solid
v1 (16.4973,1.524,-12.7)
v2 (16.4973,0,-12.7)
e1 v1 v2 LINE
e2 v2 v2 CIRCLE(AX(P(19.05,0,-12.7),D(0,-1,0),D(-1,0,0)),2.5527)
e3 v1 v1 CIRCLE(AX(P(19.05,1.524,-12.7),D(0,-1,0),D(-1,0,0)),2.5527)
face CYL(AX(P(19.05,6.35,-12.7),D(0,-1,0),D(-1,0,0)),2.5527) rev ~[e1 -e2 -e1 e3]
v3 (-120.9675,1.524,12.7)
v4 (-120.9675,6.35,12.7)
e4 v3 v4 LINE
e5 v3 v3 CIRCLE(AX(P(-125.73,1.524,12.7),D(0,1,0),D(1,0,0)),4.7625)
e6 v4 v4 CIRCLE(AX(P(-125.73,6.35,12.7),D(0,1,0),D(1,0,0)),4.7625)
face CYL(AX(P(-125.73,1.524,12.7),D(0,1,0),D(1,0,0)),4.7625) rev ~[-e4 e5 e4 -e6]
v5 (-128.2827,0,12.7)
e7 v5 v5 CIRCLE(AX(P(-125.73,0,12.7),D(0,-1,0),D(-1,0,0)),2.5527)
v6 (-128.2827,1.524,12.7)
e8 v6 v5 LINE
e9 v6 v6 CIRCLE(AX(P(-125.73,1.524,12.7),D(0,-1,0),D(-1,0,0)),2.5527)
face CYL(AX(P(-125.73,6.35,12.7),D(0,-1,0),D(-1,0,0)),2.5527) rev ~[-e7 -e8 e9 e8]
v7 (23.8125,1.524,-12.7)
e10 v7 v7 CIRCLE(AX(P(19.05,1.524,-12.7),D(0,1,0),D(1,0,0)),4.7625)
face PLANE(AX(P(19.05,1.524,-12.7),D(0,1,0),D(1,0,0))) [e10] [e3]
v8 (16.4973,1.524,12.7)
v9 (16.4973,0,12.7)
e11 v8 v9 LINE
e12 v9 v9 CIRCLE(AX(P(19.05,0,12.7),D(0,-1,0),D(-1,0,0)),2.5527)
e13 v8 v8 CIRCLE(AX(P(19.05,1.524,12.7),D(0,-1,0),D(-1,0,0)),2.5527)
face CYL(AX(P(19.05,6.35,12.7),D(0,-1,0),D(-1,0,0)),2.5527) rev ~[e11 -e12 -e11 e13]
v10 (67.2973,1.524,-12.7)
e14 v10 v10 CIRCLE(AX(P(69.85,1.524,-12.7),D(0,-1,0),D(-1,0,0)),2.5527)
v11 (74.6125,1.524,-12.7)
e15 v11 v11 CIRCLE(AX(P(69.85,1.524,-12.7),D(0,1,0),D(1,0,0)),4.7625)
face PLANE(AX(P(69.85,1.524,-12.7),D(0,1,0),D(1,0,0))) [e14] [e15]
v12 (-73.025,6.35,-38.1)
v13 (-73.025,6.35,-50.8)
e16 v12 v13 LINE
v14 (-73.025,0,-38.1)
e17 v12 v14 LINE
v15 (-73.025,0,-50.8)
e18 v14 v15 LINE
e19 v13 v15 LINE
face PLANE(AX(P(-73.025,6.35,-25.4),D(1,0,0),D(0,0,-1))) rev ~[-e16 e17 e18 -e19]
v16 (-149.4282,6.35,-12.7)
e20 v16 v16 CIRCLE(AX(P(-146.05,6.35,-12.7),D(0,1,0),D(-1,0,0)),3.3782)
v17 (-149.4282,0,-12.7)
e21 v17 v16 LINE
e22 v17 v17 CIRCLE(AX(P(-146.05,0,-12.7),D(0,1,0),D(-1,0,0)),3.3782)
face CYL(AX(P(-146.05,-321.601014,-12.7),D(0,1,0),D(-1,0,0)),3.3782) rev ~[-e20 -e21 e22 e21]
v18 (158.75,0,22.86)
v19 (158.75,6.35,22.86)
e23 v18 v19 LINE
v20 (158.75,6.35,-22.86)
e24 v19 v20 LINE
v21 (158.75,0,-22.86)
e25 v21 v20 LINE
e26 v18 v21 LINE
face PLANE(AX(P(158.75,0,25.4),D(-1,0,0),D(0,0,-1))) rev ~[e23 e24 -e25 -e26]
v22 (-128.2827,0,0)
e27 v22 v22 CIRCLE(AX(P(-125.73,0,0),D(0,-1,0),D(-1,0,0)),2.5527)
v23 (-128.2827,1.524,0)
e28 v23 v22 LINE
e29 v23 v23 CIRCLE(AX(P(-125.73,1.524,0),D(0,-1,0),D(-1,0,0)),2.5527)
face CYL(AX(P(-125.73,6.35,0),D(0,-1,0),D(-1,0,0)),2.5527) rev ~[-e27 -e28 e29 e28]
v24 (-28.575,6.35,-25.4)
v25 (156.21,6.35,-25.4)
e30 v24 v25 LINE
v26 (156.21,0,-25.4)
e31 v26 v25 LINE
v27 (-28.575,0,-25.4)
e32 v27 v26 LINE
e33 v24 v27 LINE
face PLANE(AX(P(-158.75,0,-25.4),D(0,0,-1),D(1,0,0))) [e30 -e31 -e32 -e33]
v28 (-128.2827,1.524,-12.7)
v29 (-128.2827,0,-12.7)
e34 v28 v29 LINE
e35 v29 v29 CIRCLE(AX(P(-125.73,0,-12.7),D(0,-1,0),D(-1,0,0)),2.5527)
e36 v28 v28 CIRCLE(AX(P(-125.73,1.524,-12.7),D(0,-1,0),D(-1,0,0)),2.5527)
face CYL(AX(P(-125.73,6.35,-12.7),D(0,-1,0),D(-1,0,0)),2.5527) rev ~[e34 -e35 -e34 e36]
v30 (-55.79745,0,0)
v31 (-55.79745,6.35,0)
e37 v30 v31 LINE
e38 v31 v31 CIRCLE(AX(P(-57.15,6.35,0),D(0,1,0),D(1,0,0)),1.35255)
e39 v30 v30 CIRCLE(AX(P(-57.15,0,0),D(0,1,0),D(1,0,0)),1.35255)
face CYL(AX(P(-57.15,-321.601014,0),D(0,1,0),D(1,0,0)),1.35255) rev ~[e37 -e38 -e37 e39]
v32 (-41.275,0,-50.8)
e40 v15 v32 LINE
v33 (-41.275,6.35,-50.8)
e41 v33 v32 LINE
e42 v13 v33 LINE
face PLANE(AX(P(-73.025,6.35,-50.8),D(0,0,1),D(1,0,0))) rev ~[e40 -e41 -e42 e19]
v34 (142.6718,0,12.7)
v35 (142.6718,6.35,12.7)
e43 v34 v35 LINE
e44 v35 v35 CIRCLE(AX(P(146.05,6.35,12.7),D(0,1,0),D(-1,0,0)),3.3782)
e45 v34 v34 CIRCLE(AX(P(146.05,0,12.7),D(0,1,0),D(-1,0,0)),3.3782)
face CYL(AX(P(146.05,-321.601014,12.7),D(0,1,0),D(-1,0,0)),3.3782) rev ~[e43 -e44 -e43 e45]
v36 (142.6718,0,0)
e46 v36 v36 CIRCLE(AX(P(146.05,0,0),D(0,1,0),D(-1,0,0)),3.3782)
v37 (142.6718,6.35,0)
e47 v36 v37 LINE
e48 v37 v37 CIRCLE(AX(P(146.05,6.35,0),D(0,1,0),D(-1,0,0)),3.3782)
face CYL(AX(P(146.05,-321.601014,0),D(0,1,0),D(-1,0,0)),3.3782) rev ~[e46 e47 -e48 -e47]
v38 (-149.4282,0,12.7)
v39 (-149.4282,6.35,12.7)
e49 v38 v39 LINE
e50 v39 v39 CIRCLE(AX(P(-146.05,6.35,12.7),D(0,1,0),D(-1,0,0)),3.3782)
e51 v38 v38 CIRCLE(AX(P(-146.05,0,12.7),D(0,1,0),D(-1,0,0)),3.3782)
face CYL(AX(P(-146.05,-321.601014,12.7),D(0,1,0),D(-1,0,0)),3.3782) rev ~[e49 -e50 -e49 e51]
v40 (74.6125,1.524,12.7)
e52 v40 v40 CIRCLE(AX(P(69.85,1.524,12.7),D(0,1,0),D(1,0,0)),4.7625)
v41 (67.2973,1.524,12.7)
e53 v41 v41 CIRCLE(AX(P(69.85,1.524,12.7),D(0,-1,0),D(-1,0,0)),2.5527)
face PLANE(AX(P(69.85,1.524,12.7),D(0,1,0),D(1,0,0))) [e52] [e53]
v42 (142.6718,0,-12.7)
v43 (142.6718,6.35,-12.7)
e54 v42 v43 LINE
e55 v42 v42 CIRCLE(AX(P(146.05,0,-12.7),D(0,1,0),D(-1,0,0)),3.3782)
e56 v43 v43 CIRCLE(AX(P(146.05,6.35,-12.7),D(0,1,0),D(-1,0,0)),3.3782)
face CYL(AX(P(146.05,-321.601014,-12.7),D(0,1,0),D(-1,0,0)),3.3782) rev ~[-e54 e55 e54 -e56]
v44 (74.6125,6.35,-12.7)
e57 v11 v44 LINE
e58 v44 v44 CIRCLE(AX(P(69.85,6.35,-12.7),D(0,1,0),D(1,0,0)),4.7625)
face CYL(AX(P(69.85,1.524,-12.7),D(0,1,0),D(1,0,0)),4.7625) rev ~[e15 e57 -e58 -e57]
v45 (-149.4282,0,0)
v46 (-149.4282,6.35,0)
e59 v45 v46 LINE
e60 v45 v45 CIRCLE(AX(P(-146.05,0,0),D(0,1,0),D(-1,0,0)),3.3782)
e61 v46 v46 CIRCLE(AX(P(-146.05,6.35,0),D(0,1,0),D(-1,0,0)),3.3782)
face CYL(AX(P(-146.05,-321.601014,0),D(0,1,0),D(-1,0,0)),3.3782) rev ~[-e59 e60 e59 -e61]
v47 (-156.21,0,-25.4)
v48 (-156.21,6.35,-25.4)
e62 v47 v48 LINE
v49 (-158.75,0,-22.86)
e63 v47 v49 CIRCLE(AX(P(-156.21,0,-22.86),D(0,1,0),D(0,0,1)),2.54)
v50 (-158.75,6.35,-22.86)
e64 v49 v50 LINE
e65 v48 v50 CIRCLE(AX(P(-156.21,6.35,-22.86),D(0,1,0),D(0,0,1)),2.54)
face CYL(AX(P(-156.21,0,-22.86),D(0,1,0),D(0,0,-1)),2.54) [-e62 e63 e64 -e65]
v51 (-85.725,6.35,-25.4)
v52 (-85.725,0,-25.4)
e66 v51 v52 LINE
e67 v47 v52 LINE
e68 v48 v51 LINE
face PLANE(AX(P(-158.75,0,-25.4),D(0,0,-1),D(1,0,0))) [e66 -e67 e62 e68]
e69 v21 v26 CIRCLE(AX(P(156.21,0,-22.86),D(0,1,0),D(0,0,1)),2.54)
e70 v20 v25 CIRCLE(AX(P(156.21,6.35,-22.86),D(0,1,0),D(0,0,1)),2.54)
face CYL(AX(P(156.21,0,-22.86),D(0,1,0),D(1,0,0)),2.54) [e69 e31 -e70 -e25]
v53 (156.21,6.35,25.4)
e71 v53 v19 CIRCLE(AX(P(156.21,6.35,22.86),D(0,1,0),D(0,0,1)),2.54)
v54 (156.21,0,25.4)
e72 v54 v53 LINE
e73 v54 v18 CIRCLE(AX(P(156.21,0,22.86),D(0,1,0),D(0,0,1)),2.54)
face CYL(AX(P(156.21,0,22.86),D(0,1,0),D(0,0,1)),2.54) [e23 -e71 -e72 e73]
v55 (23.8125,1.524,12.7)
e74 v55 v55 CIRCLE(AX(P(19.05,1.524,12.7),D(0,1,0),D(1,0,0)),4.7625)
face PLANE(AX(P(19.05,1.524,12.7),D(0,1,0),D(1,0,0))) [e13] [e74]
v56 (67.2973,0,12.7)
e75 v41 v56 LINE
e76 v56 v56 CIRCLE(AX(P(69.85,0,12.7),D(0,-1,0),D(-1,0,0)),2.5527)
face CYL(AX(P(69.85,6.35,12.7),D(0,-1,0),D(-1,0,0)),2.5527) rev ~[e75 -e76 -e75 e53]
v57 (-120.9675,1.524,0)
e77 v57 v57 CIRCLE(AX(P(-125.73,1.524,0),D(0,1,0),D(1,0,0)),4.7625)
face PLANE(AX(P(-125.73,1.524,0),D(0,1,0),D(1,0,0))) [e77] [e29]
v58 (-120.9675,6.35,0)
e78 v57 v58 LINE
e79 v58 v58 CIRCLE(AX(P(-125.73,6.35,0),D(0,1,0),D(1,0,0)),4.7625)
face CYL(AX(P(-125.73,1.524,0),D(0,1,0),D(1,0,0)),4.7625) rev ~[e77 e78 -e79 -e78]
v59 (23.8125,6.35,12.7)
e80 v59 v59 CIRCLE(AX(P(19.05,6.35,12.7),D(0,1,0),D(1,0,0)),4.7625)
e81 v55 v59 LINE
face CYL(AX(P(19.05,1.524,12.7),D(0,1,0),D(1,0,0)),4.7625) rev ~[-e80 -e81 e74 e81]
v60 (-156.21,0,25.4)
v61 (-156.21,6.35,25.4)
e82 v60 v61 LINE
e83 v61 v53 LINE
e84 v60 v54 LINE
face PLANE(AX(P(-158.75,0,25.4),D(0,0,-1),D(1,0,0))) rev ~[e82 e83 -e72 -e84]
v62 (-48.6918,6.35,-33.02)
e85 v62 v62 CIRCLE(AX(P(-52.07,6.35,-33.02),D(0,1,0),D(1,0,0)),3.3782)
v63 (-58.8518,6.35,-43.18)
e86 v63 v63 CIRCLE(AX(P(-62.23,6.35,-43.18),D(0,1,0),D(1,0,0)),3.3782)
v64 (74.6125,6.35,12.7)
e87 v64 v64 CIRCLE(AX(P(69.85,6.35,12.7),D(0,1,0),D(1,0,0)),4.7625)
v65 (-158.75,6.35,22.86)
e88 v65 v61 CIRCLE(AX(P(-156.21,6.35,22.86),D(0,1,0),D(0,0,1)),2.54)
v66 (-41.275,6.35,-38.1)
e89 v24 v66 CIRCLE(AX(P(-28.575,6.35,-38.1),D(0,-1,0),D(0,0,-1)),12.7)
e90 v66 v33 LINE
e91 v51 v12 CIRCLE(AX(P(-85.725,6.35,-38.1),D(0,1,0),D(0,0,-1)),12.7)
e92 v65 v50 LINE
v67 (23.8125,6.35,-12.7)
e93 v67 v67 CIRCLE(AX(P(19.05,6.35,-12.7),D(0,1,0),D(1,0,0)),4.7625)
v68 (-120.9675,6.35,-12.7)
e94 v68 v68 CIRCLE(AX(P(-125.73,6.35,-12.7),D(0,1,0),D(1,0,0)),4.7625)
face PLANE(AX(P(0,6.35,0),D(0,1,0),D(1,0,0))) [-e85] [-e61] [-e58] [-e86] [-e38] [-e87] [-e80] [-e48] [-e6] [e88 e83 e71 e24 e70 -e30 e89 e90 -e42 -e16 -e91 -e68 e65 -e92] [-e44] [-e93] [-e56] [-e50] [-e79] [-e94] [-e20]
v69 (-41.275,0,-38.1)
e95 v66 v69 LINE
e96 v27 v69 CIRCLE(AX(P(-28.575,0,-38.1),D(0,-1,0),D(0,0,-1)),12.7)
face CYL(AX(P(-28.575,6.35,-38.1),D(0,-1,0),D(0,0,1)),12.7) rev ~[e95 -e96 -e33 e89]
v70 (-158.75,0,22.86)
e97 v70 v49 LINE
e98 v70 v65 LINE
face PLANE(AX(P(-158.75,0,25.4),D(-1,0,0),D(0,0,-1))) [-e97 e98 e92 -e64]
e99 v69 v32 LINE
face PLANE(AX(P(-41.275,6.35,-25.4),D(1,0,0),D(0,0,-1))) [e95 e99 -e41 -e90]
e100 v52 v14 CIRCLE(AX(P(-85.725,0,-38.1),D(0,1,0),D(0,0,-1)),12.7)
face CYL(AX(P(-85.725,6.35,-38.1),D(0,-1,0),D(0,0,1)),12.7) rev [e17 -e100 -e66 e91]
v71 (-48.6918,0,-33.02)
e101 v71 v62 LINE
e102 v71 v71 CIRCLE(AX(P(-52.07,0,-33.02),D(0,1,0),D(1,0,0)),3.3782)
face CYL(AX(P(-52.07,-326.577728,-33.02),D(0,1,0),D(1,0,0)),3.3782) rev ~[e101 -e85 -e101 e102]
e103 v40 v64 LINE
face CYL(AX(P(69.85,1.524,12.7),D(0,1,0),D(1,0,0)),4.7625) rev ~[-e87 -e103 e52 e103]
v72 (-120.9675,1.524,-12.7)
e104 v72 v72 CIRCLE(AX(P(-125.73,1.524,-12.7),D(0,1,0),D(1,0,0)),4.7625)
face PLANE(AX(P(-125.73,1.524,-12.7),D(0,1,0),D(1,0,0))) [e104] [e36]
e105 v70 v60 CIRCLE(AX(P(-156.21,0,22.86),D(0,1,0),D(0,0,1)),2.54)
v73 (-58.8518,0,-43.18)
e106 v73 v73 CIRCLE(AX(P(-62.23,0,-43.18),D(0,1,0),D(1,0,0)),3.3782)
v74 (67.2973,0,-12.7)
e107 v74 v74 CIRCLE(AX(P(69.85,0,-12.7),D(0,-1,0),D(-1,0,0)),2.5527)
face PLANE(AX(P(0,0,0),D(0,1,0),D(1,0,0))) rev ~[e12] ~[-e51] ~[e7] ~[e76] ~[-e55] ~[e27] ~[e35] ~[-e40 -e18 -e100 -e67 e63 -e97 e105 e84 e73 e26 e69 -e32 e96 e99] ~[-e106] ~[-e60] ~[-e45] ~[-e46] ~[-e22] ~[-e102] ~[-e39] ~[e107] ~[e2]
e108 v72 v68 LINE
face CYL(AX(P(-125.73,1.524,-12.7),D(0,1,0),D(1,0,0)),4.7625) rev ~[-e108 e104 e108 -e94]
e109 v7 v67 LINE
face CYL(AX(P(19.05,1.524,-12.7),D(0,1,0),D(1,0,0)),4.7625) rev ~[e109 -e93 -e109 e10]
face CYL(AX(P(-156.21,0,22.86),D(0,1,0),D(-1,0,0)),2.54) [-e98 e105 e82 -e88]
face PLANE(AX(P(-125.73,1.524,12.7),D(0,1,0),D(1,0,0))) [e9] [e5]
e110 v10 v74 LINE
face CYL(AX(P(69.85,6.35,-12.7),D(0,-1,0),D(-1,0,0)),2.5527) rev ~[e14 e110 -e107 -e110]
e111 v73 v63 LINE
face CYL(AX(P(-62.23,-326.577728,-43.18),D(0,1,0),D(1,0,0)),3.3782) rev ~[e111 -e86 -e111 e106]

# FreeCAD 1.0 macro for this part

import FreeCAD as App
import Part
import Sketcher
from FreeCAD import Vector
Q = App.Units.Quantity


def edges_at(feature, points):
    """Names of the edges that pass closest to the given points."""
    edges = feature.Shape.Edges
    near = lambda p: min(range(len(edges)), key=lambda i: edges[i].distToShape(Part.Vertex(*p))[0])
    return sorted({f"Edge{near(p) + 1}" for p in points})


def add_polygon(sketch, points):
    """Adds a closed chain of lines whose ends are joined by coincident constraints."""
    first, n = sketch.GeometryCount, len(points)
    for a, b in zip(points, points[1:] + points[:1]):
        sketch.addGeometry(Part.LineSegment(App.Vector(*a, 0), App.Vector(*b, 0)), False)
    for i in range(n):
        sketch.addConstraint(Sketcher.Constraint("Coincident", first + i, 2, first + (i + 1) % n, 1))

doc = App.newDocument("Part")
body = doc.addObject("PartDesign::Body", "Body")

# Sketch on XZ plane
sketch1 = body.newObject("Sketcher::SketchObject", "Sketch")
sketch1.AttachmentSupport = (doc.getObject("XZ_Plane"), [""])
sketch1.MapMode = "FlatFace"
add_polygon(sketch1, [(-158.75, -25.4), (-158.75, 25.4), (158.75, 25.4), (158.75, -25.4)])  # lines 0-3
sketch1.addConstraint(Sketcher.Constraint("Vertical", 0))
sketch1.addConstraint(Sketcher.Constraint("Horizontal", 1))
sketch1.addConstraint(Sketcher.Constraint("Vertical", 2))
sketch1.addConstraint(Sketcher.Constraint("Horizontal", 3))
sketch1.addConstraint(Sketcher.Constraint("Symmetric", 0, 2, 2, 2, -1, 1))
sketch1.addConstraint(Sketcher.Constraint("DistanceY", 0, 1, 0, 2, Q("2 in")))
sketch1.addConstraint(Sketcher.Constraint("DistanceX", 1, 1, 1, 2, Q("12.5 in")))
pad1 = body.newObject("PartDesign::Pad", "Pad")
pad1.Profile = sketch1
pad1.Length = Q("0.25 in")
pad1.Reversed = True

# Sketch on XZ plane
sketch2 = body.newObject("Sketcher::SketchObject", "Sketch001")
sketch2.AttachmentSupport = (doc.getObject("XZ_Plane"), [""])
sketch2.MapMode = "FlatFace"
sketch2.AttachmentOffset = App.Placement(Vector(0, 0, -0.25 * 25.4), App.Rotation())
sketch2.addGeometry(Part.Circle(Vector(-125.73, 12.7, 0), Vector(0, 0, 1), 2.5527), False)
sketch2.addGeometry(Part.Circle(Vector(19.05, -12.7, 0), Vector(0, 0, 1), 2.5527), False)
sketch2.addGeometry(Part.Circle(Vector(69.85, -12.7, 0), Vector(0, 0, 1), 2.5527), False)
sketch2.addGeometry(Part.Circle(Vector(19.05, 12.7, 0), Vector(0, 0, 1), 2.5527), False)
sketch2.addGeometry(Part.Circle(Vector(69.85, 12.7, 0), Vector(0, 0, 1), 2.5527), False)
sketch2.addGeometry(Part.Circle(Vector(-125.73, -12.7, 0), Vector(0, 0, 1), 2.5527), False)
sketch2.addGeometry(Part.Circle(Vector(-125.73, 0, 0), Vector(0, 0, 1), 2.5527), False)
sketch2.addConstraint(Sketcher.Constraint("Equal", 0, 1))
sketch2.addConstraint(Sketcher.Constraint("Equal", 1, 2))
sketch2.addConstraint(Sketcher.Constraint("Equal", 2, 3))
sketch2.addConstraint(Sketcher.Constraint("Equal", 3, 4))
sketch2.addConstraint(Sketcher.Constraint("Equal", 4, 5))
sketch2.addConstraint(Sketcher.Constraint("Equal", 5, 6))
sketch2.addConstraint(Sketcher.Constraint("Symmetric", 1, 3, 3, 3, -1))
sketch2.addConstraint(Sketcher.Constraint("Symmetric", 2, 3, 4, 3, -1))
sketch2.addConstraint(Sketcher.Constraint("Symmetric", 0, 3, 5, 3, -1))
sketch2.addConstraint(Sketcher.Constraint("PointOnObject", 6, 3, -1))
sketch2.addConstraint(Sketcher.Constraint("Horizontal", 1, 3, 2, 3))
sketch2.addConstraint(Sketcher.Constraint("Horizontal", 0, 3, 3, 3))
sketch2.addConstraint(Sketcher.Constraint("Vertical", 5, 3, 6, 3))
sketch2.addConstraint(Sketcher.Constraint("Diameter", 0, Q("0.201 in")))
sketch2.addConstraint(Sketcher.Constraint("DistanceY", 1, 3, 0, 3, Q("1 in")))
sketch2.addConstraint(Sketcher.Constraint("DistanceX", 1, 3, 2, 3, Q("2 in")))
sketch2.addConstraint(Sketcher.Constraint("DistanceX", 0, 3, 1, 3, Q("5.7 in")))
sketch2.addConstraint(Sketcher.Constraint("DistanceX", 0, 3, -1, 1, Q("4.95 in")))
doc.recompute()
hole = body.newObject("PartDesign::Hole", "Hole")
hole.Profile = sketch2
hole.ThreadType = "None"
hole.Diameter = Q("0.201 in")
hole.DepthType = "ThroughAll"
hole.HoleCutType = "Counterbore"
hole.HoleCutDiameter = Q("0.375 in")
hole.HoleCutDepth = Q("0.19 in")
hole.Reversed = True

# Sketch on XZ plane
sketch3 = body.newObject("Sketcher::SketchObject", "Sketch002")
sketch3.AttachmentSupport = (doc.getObject("XZ_Plane"), [""])
sketch3.MapMode = "FlatFace"
sketch3.addGeometry(Part.Circle(Vector(-146.05, 12.7, 0), Vector(0, 0, 1), 3.3782), False)
sketch3.addGeometry(Part.Circle(Vector(-146.05, 0, 0), Vector(0, 0, 1), 3.3782), False)
sketch3.addGeometry(Part.Circle(Vector(-146.05, -12.7, 0), Vector(0, 0, 1), 3.3782), False)
sketch3.addGeometry(Part.Circle(Vector(146.05, 12.7, 0), Vector(0, 0, 1), 3.3782), False)
sketch3.addGeometry(Part.Circle(Vector(146.05, 0, 0), Vector(0, 0, 1), 3.3782), False)
sketch3.addGeometry(Part.Circle(Vector(146.05, -12.7, 0), Vector(0, 0, 1), 3.3782), False)
sketch3.addConstraint(Sketcher.Constraint("Equal", 0, 1))
sketch3.addConstraint(Sketcher.Constraint("Equal", 1, 2))
sketch3.addConstraint(Sketcher.Constraint("Equal", 2, 3))
sketch3.addConstraint(Sketcher.Constraint("Equal", 3, 4))
sketch3.addConstraint(Sketcher.Constraint("Equal", 4, 5))
sketch3.addConstraint(Sketcher.Constraint("Symmetric", 2, 3, 3, 3, -1, 1))
sketch3.addConstraint(Sketcher.Constraint("Symmetric", 1, 3, 4, 3, -1, 1))
sketch3.addConstraint(Sketcher.Constraint("Symmetric", 0, 3, 5, 3, -1, 1))
sketch3.addConstraint(Sketcher.Constraint("Symmetric", 0, 3, 3, 3, -2))
sketch3.addConstraint(Sketcher.Constraint("PointOnObject", 1, 3, -1))
sketch3.addConstraint(Sketcher.Constraint("Vertical", 0, 3, 1, 3))
sketch3.addConstraint(Sketcher.Constraint("Diameter", 0, Q("0.266 in")))
sketch3.addConstraint(Sketcher.Constraint("DistanceY", 2, 3, 0, 3, Q("1 in")))
sketch3.addConstraint(Sketcher.Constraint("DistanceX", 0, 3, 3, 3, Q("11.5 in")))
doc.recompute()
hole2 = body.newObject("PartDesign::Hole", "Hole001")
hole2.Profile = sketch3
hole2.ThreadType = "None"
hole2.Diameter = Q("0.266 in")
hole2.DepthType = "ThroughAll"

# Sketch on XZ plane
sketch4 = body.newObject("Sketcher::SketchObject", "Sketch003")
sketch4.AttachmentSupport = (doc.getObject("XZ_Plane"), [""])
sketch4.MapMode = "FlatFace"
sketch4.addGeometry(Part.Circle(Vector(-57.15, 0, 0), Vector(0, 0, 1), 1.35255), False)
sketch4.addConstraint(Sketcher.Constraint("PointOnObject", 0, 3, -1))
sketch4.addConstraint(Sketcher.Constraint("Diameter", 0, Q("0.1065 in")))
sketch4.addConstraint(Sketcher.Constraint("DistanceX", 0, 3, -1, 1, Q("2.25 in")))
doc.recompute()
hole3 = body.newObject("PartDesign::Hole", "Hole002")
hole3.Profile = sketch4
hole3.ThreadType = "None"
hole3.Diameter = Q("0.1065 in")
hole3.DepthType = "ThroughAll"

# Sketch on XZ plane
sketch5 = body.newObject("Sketcher::SketchObject", "Sketch004")
sketch5.AttachmentSupport = (doc.getObject("XZ_Plane"), [""])
sketch5.MapMode = "FlatFace"
sketch5.AttachmentOffset = App.Placement(Vector(0, 0, -0.25 * 25.4), App.Rotation())
add_polygon(sketch5, [(-73.025, -50.8), (-73.025, -25.4), (-41.275, -25.4), (-41.275, -50.8)])  # lines 0-3
sketch5.addConstraint(Sketcher.Constraint("Vertical", 0))
sketch5.addConstraint(Sketcher.Constraint("Horizontal", 1))
sketch5.addConstraint(Sketcher.Constraint("Vertical", 2))
sketch5.addConstraint(Sketcher.Constraint("Horizontal", 3))
sketch5.addConstraint(Sketcher.Constraint("DistanceY", 0, 1, 0, 2, Q("1 in")))
sketch5.addConstraint(Sketcher.Constraint("DistanceY", 0, 2, -1, 1, Q("1 in")))
sketch5.addConstraint(Sketcher.Constraint("DistanceX", 1, 1, 1, 2, Q("1.25 in")))
sketch5.addConstraint(Sketcher.Constraint("DistanceX", 0, 2, -1, 1, Q("2.875 in")))
pad2 = body.newObject("PartDesign::Pad", "Pad001")
pad2.Profile = sketch5
pad2.Length = Q("0.25 in")

# Sketch on XZ plane
sketch6 = body.newObject("Sketcher::SketchObject", "Sketch005")
sketch6.AttachmentSupport = (doc.getObject("XZ_Plane"), [""])
sketch6.MapMode = "FlatFace"
sketch6.addGeometry(Part.Circle(Vector(-62.23, -43.18, 0), Vector(0, 0, 1), 3.3782), False)
sketch6.addGeometry(Part.Circle(Vector(-52.07, -33.02, 0), Vector(0, 0, 1), 3.3782), False)
sketch6.addConstraint(Sketcher.Constraint("Equal", 0, 1))
sketch6.addConstraint(Sketcher.Constraint("Diameter", 0, Q("0.266 in")))
sketch6.addConstraint(Sketcher.Constraint("DistanceY", 0, 3, -1, 1, Q("1.7 in")))
sketch6.addConstraint(Sketcher.Constraint("DistanceY", 1, 3, -1, 1, Q("1.3 in")))
sketch6.addConstraint(Sketcher.Constraint("DistanceX", 0, 3, 1, 3, Q("0.4 in")))
sketch6.addConstraint(Sketcher.Constraint("DistanceX", 0, 3, -1, 1, Q("2.45 in")))
doc.recompute()
hole4 = body.newObject("PartDesign::Hole", "Hole003")
hole4.Profile = sketch6
hole4.ThreadType = "None"
hole4.Diameter = Q("0.266 in")
hole4.DepthType = "ThroughAll"
doc.recompute()

fillet = body.newObject("PartDesign::Fillet", "Fillet")
fillet.Base = (hole4, edges_at(hole4, [(-73.025, 3.175, -25.4), (-41.275, 3.175, -25.4)]))
fillet.Radius = Q("0.5 in")
doc.recompute()

fillet2 = body.newObject("PartDesign::Fillet", "Fillet001")
fillet2.Base = (fillet, edges_at(fillet, [
    (158.75, 3.175, 25.4),
    (-158.75, 3.175, 25.4),
    (-158.75, 3.175, -25.4),
    (158.75, 3.175, -25.4),
]))
fillet2.Radius = Q("0.1 in")

doc.recompute()
